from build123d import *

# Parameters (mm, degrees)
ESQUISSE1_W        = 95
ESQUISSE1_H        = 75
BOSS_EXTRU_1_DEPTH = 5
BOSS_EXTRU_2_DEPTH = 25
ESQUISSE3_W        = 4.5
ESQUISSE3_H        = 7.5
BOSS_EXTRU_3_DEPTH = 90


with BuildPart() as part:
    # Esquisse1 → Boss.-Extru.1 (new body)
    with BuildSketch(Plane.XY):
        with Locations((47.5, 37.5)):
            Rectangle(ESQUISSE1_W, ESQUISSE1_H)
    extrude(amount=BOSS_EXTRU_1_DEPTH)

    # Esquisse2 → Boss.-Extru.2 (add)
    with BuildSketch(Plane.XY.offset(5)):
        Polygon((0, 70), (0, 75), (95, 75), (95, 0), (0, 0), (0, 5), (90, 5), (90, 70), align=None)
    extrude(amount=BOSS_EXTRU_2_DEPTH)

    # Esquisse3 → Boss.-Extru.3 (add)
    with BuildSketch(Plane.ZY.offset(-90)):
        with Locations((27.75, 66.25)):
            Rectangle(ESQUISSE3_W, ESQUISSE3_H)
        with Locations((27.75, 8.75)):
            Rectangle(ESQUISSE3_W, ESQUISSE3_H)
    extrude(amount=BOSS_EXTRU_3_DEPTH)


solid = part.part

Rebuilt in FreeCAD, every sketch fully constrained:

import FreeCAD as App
import Part
import Sketcher
from FreeCAD import Vector
Q = App.Units.Quantity

doc = App.newDocument("Part")
body = doc.addObject("PartDesign::Body", "Body")

sketch1 = body.newObject("Sketcher::SketchObject", "Sketch")
sketch1.AttachmentSupport = (doc.getObject("XY_Plane"), [""])
sketch1.MapMode = "FlatFace"
sketch1.addGeometry([
    Part.LineSegment(Vector(0, 75, 0), Vector(0, 0, 0)),
    Part.LineSegment(Vector(0, 0, 0), Vector(95, 0, 0)),
    Part.LineSegment(Vector(95, 0, 0), Vector(95, 75, 0)),
    Part.LineSegment(Vector(95, 75, 0), Vector(0, 75, 0)),
], False)
sketch1.addConstraint([
    Sketcher.Constraint("Coincident", 0, 2, 1, 1),
    Sketcher.Constraint("Coincident", 1, 2, 2, 1),
    Sketcher.Constraint("Coincident", 2, 2, 3, 1),
    Sketcher.Constraint("Coincident", 3, 2, 0, 1),
    Sketcher.Constraint("Vertical", 0),
    Sketcher.Constraint("Horizontal", 1),
    Sketcher.Constraint("Vertical", 2),
    Sketcher.Constraint("Horizontal", 3),
    Sketcher.Constraint("Coincident", 0, 2, -1, 1),
    Sketcher.Constraint("DistanceX", 1, 1, 1, 2, Q("95 mm")),
    Sketcher.Constraint("DistanceY", 0, 2, 0, 1, Q("75 mm")),
])
pad1 = body.newObject("PartDesign::Pad", "Pad")
pad1.Profile = sketch1
pad1.Length = 5

sketch2 = body.newObject("Sketcher::SketchObject", "Sketch001")
sketch2.AttachmentSupport = (doc.getObject("XY_Plane"), [""])
sketch2.MapMode = "FlatFace"
sketch2.AttachmentOffset = App.Placement(Vector(0, 0, 5), App.Rotation())
sketch2.addGeometry([
    Part.LineSegment(Vector(0, 75, 0), Vector(0, 70, 0)),
    Part.LineSegment(Vector(0, 70, 0), Vector(90, 70, 0)),
    Part.LineSegment(Vector(90, 70, 0), Vector(90, 5, 0)),
    Part.LineSegment(Vector(90, 5, 0), Vector(0, 5, 0)),
    Part.LineSegment(Vector(0, 5, 0), Vector(0, 0, 0)),
    Part.LineSegment(Vector(0, 0, 0), Vector(95, 0, 0)),
    Part.LineSegment(Vector(95, 0, 0), Vector(95, 75, 0)),
    Part.LineSegment(Vector(95, 75, 0), Vector(0, 75, 0)),
], False)
sketch2.addConstraint([
    Sketcher.Constraint("Coincident", 0, 2, 1, 1),
    Sketcher.Constraint("Coincident", 1, 2, 2, 1),
    Sketcher.Constraint("Coincident", 2, 2, 3, 1),
    Sketcher.Constraint("Coincident", 3, 2, 4, 1),
    Sketcher.Constraint("Coincident", 4, 2, 5, 1),
    Sketcher.Constraint("Coincident", 5, 2, 6, 1),
    Sketcher.Constraint("Coincident", 6, 2, 7, 1),
    Sketcher.Constraint("Coincident", 7, 2, 0, 1),
    Sketcher.Constraint("Vertical", 0),
    Sketcher.Constraint("Horizontal", 1),
    Sketcher.Constraint("Vertical", 2),
    Sketcher.Constraint("Horizontal", 3),
    Sketcher.Constraint("Vertical", 4),
    Sketcher.Constraint("Horizontal", 5),
    Sketcher.Constraint("Vertical", 6),
    Sketcher.Constraint("Horizontal", 7),
    Sketcher.Constraint("Coincident", 4, 2, -1, 1),
    Sketcher.Constraint("PointOnObject", 0, 2, -2),
    Sketcher.Constraint("Equal", 0, 4),
    Sketcher.Constraint("DistanceX", 1, 1, 1, 2, Q("90 mm")),
    Sketcher.Constraint("DistanceX", 5, 1, 5, 2, Q("95 mm")),
    Sketcher.Constraint("DistanceY", 0, 2, 0, 1, Q("5 mm")),
    Sketcher.Constraint("DistanceY", 2, 2, 2, 1, Q("65 mm")),
])
pad2 = body.newObject("PartDesign::Pad", "Pad001")
pad2.Profile = sketch2
pad2.Length = 25

sketch3 = body.newObject("Sketcher::SketchObject", "Sketch002")
sketch3.AttachmentSupport = (doc.getObject("YZ_Plane"), [""])
sketch3.MapMode = "FlatFace"
sketch3.AttachmentOffset = App.Placement(Vector(0, 0, 90), App.Rotation())
sketch3.addGeometry([
    Part.LineSegment(Vector(70, 25.5, 0), Vector(62.5, 25.5, 0)),
    Part.LineSegment(Vector(62.5, 25.5, 0), Vector(62.5, 30, 0)),
    Part.LineSegment(Vector(62.5, 30, 0), Vector(70, 30, 0)),
    Part.LineSegment(Vector(70, 30, 0), Vector(70, 25.5, 0)),
    Part.LineSegment(Vector(12.5, 25.5, 0), Vector(5, 25.5, 0)),
    Part.LineSegment(Vector(5, 25.5, 0), Vector(5, 30, 0)),
    Part.LineSegment(Vector(5, 30, 0), Vector(12.5, 30, 0)),
    Part.LineSegment(Vector(12.5, 30, 0), Vector(12.5, 25.5, 0)),
], False)
sketch3.addConstraint([
    Sketcher.Constraint("Coincident", 0, 2, 1, 1),
    Sketcher.Constraint("Coincident", 1, 2, 2, 1),
    Sketcher.Constraint("Coincident", 2, 2, 3, 1),
    Sketcher.Constraint("Coincident", 3, 2, 0, 1),
    Sketcher.Constraint("Coincident", 4, 2, 5, 1),
    Sketcher.Constraint("Coincident", 5, 2, 6, 1),
    Sketcher.Constraint("Coincident", 6, 2, 7, 1),
    Sketcher.Constraint("Coincident", 7, 2, 4, 1),
    Sketcher.Constraint("Horizontal", 0),
    Sketcher.Constraint("Vertical", 1),
    Sketcher.Constraint("Horizontal", 2),
    Sketcher.Constraint("Vertical", 3),
    Sketcher.Constraint("Horizontal", 4),
    Sketcher.Constraint("Vertical", 5),
    Sketcher.Constraint("Horizontal", 6),
    Sketcher.Constraint("Vertical", 7),
    Sketcher.Constraint("Horizontal", 3, 2, 4, 2),
    Sketcher.Constraint("Horizontal", 2, 2, 5, 2),
    Sketcher.Constraint("Equal", 2, 4),
    Sketcher.Constraint("DistanceX", 0, 2, 0, 1, Q("7.5 mm")),
    Sketcher.Constraint("DistanceY", 1, 1, 1, 2, Q("4.5 mm")),
    Sketcher.Constraint("DistanceY", -1, 1, 1, 2, Q("30 mm")),
    Sketcher.Constraint("DistanceX", -1, 1, 2, 2, Q("70 mm")),
    Sketcher.Constraint("DistanceX", -1, 1, 4, 2, Q("5 mm")),
])
pad3 = body.newObject("PartDesign::Pad", "Pad002")
pad3.Profile = sketch3
pad3.Length = 90
pad3.Reversed = True

doc.recompute()
